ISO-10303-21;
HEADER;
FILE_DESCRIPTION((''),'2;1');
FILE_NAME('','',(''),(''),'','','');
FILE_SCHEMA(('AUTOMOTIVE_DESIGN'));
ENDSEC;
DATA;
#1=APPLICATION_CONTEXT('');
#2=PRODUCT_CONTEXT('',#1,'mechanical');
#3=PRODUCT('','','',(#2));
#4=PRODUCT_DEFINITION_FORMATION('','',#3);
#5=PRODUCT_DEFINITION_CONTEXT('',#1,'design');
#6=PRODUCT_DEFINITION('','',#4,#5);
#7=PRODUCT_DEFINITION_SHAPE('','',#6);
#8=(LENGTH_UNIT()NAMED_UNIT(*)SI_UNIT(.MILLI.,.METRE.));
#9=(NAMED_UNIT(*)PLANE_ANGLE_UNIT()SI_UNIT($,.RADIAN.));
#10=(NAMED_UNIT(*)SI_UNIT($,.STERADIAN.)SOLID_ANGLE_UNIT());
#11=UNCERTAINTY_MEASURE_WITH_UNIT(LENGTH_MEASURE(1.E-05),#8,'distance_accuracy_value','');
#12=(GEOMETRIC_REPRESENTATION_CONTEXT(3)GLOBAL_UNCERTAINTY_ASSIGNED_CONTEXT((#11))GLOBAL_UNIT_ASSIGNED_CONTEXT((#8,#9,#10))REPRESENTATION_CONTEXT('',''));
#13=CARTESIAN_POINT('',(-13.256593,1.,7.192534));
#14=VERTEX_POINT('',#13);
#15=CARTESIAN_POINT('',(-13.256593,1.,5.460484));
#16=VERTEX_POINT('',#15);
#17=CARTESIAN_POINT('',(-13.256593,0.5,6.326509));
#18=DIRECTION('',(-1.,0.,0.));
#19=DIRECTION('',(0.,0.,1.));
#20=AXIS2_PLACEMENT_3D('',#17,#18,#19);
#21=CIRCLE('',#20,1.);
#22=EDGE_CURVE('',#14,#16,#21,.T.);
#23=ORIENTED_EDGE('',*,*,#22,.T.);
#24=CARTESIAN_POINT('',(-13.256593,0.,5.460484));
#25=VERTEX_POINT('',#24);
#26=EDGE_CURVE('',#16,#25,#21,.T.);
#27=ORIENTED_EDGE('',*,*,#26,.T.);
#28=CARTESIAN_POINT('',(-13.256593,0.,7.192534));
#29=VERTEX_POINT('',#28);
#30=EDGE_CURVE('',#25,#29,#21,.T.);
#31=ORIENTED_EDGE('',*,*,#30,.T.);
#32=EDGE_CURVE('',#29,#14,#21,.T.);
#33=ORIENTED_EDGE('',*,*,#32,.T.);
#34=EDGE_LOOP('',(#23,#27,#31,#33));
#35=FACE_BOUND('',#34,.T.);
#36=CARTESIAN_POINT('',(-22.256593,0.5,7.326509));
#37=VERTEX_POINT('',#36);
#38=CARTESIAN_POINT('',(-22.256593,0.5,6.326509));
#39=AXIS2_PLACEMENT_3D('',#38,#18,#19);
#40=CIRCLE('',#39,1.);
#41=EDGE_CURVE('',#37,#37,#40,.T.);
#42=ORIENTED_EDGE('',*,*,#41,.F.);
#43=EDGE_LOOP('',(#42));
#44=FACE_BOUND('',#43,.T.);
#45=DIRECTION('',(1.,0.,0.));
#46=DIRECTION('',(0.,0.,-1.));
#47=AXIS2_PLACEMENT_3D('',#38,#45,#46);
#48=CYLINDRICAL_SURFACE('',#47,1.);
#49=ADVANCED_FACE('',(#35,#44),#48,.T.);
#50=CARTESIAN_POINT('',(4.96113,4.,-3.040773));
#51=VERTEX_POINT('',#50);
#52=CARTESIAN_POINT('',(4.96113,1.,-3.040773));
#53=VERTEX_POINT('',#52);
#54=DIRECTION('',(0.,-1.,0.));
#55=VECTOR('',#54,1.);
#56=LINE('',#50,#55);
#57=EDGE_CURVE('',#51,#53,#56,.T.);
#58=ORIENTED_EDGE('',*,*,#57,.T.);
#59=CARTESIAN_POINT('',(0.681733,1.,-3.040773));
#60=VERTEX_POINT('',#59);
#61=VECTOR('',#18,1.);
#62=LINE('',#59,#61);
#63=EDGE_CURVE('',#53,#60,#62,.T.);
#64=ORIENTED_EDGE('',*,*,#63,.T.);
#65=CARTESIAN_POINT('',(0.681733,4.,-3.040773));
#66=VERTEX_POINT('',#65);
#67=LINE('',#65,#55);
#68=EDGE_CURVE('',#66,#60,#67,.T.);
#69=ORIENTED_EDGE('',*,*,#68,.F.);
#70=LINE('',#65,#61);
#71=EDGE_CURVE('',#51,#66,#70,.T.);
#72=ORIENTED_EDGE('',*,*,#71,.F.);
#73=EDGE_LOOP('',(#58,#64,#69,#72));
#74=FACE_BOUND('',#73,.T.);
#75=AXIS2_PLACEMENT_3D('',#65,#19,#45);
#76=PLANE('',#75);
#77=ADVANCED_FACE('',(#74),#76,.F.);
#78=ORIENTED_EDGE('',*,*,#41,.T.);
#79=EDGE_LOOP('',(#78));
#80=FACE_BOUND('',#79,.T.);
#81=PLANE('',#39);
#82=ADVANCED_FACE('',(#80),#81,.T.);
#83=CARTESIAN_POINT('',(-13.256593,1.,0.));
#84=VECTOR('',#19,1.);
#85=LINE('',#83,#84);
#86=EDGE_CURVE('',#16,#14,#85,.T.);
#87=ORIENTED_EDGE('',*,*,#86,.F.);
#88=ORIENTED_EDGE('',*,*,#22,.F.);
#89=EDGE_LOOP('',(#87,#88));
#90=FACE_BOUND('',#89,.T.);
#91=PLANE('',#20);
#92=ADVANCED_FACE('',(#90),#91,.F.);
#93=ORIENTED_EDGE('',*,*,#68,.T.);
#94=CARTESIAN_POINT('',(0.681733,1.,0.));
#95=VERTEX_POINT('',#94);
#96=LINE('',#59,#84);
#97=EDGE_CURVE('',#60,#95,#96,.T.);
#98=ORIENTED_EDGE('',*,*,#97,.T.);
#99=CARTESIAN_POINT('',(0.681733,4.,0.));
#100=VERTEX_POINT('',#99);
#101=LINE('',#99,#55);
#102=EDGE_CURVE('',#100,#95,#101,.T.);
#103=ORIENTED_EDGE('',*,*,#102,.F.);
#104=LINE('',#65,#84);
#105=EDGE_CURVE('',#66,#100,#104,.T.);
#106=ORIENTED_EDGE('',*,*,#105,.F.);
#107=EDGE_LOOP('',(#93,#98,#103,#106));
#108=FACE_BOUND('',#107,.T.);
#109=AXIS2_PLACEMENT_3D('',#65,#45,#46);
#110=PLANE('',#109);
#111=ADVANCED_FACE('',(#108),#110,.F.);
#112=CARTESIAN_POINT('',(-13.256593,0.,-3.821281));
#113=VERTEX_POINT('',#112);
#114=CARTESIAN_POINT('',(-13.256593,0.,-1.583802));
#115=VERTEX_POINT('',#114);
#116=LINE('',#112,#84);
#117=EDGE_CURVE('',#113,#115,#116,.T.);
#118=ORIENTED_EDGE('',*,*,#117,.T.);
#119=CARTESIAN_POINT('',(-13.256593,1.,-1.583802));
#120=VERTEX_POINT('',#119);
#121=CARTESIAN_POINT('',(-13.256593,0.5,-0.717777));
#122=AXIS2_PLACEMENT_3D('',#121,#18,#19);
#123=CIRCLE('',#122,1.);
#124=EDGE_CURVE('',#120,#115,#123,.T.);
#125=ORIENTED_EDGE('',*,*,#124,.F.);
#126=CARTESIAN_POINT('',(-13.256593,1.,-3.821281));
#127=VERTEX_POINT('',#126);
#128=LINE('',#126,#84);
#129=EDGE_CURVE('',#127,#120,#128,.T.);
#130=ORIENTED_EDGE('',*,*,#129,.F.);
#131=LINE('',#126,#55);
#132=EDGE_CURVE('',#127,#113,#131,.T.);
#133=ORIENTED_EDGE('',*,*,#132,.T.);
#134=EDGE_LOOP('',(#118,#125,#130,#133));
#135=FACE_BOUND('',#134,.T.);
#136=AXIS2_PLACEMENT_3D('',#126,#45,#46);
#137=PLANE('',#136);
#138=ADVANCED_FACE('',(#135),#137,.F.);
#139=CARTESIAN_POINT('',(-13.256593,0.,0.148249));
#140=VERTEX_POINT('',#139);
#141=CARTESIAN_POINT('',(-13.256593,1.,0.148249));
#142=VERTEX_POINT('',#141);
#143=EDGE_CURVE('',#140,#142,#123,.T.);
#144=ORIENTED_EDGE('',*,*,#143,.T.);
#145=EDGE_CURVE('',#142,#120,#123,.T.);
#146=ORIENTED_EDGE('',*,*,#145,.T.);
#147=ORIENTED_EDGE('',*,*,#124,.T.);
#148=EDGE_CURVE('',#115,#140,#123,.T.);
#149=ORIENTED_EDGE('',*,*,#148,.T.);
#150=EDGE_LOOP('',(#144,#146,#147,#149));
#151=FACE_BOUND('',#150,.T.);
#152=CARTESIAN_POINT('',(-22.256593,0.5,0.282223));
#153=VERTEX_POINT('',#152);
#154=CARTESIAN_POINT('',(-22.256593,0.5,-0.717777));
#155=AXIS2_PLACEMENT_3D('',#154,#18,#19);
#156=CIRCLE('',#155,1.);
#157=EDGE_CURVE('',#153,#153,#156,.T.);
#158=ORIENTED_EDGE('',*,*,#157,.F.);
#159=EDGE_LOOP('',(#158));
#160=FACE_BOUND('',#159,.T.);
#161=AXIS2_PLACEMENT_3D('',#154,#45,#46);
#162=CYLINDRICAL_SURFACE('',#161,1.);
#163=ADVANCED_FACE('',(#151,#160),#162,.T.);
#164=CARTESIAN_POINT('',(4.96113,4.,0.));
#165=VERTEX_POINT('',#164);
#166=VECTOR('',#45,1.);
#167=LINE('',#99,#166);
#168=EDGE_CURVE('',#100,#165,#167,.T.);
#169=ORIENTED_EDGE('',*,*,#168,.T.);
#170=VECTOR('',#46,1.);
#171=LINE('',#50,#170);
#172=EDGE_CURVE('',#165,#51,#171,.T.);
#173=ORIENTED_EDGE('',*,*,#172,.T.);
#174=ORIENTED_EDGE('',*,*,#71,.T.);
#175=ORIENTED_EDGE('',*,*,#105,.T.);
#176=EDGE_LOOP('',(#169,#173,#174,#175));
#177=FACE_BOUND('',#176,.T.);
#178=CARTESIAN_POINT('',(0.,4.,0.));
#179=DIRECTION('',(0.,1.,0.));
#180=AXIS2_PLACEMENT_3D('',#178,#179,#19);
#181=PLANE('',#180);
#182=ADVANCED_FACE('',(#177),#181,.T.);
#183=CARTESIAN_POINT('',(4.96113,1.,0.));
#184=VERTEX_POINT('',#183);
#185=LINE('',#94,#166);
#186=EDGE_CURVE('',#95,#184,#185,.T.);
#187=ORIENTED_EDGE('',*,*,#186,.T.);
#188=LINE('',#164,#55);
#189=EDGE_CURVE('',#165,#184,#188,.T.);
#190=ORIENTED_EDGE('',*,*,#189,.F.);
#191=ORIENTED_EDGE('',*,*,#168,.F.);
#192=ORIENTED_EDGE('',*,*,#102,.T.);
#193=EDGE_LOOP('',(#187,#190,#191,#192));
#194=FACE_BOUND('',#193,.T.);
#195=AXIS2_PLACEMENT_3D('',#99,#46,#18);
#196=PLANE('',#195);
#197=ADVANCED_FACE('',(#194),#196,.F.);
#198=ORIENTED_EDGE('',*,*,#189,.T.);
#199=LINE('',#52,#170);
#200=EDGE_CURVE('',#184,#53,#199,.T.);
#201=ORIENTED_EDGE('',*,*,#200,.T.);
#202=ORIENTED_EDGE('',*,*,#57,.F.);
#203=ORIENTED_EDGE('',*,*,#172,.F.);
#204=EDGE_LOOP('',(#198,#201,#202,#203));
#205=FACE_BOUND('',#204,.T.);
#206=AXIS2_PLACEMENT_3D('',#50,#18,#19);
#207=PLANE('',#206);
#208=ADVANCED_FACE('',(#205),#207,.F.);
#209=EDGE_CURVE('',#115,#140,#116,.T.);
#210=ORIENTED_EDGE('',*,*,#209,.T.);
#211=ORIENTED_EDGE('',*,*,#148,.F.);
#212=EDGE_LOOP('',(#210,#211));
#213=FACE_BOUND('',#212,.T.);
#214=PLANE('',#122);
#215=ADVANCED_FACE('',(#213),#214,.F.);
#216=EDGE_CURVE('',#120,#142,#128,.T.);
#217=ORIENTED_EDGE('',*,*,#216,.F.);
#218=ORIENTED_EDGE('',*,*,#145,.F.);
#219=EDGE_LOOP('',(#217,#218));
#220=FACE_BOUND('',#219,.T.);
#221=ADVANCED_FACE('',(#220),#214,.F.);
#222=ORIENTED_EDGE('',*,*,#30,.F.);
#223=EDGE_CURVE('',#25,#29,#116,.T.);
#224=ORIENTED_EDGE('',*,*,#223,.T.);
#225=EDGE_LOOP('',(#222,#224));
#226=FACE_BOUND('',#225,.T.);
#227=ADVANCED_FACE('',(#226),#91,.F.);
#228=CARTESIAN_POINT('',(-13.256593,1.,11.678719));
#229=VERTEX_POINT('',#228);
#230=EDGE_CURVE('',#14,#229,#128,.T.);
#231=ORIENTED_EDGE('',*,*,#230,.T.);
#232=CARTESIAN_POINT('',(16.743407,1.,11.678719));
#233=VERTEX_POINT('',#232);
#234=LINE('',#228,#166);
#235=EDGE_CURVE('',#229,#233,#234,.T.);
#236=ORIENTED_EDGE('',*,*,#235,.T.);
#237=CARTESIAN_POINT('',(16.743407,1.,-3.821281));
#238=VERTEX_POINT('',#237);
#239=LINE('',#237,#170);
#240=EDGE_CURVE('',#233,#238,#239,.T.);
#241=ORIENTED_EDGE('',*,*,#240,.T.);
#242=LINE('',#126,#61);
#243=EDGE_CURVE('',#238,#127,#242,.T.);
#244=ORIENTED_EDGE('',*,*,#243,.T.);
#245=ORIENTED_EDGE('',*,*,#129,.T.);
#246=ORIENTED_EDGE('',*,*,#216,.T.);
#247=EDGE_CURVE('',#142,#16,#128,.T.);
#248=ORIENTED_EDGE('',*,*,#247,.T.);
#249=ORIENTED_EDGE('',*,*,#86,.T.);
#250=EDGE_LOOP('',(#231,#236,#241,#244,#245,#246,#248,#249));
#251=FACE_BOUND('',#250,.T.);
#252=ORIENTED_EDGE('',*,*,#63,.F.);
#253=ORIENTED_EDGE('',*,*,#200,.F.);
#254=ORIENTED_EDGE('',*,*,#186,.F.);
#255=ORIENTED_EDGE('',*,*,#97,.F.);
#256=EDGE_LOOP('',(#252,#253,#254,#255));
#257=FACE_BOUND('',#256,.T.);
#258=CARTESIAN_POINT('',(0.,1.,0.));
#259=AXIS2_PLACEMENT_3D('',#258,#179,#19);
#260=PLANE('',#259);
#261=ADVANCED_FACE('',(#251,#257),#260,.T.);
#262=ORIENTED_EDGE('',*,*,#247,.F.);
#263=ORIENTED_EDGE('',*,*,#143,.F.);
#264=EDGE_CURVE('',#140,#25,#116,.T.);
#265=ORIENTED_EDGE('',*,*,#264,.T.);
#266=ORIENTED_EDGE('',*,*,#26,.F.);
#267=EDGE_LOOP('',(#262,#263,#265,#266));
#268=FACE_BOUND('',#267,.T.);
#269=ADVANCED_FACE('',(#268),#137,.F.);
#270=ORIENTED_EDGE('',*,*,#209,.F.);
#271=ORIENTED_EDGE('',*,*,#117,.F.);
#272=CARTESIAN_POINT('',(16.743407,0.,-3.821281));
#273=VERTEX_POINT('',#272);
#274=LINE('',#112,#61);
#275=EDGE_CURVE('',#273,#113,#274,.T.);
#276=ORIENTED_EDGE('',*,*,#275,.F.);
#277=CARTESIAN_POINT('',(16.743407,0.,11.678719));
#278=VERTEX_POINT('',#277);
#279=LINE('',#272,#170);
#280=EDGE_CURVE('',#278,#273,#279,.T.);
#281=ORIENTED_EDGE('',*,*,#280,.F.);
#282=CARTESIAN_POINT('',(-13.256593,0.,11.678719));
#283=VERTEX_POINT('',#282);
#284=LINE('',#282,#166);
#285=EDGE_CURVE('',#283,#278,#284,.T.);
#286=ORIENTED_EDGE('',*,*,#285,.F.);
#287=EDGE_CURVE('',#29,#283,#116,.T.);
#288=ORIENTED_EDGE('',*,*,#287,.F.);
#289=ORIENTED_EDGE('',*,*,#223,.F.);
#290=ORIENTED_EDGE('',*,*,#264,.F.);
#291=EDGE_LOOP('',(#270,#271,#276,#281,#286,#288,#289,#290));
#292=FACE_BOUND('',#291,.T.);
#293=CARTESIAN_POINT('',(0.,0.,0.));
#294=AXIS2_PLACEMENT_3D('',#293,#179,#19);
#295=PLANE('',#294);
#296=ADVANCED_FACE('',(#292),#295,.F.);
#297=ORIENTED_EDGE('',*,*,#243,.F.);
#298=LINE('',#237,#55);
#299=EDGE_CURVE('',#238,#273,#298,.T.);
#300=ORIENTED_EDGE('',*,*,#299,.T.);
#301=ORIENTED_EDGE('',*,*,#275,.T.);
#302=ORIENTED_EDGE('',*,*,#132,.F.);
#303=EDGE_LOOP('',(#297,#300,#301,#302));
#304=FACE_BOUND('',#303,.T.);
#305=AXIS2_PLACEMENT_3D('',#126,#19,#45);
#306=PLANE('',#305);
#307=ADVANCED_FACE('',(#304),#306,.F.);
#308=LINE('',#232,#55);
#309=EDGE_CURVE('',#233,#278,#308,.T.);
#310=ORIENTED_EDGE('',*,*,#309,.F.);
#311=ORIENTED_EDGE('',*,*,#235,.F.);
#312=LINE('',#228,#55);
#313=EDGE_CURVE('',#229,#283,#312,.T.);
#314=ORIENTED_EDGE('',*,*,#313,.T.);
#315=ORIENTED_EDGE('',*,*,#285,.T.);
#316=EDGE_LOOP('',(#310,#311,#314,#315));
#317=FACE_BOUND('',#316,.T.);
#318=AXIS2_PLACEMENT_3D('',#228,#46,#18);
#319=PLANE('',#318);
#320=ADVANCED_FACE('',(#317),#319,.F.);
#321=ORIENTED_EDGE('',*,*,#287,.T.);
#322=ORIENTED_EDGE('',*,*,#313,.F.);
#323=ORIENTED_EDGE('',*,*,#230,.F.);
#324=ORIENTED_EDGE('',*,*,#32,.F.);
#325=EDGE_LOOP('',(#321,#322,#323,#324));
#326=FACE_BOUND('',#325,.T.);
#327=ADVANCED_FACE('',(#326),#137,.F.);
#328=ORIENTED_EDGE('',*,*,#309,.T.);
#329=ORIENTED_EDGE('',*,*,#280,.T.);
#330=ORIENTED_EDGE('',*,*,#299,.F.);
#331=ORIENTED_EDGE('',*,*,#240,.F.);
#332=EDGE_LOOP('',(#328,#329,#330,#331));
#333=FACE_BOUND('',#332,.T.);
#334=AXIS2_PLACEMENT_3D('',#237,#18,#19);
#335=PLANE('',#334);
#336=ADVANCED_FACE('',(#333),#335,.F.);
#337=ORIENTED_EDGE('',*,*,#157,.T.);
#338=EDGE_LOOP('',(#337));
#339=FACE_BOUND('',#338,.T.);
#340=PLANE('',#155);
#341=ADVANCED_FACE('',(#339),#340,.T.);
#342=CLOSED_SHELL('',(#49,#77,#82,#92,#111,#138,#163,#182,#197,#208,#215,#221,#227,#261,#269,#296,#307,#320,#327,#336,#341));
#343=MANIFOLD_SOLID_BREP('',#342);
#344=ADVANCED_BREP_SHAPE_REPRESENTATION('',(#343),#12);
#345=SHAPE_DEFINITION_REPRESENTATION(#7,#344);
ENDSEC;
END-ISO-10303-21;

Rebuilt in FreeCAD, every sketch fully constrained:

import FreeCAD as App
import Part
import Sketcher

V = App.Vector


def add_polygon(sketch, points):
    """Adds a closed chain of lines whose ends are joined by coincident constraints."""
    first, n = sketch.GeometryCount, len(points)
    for a, b in zip(points, points[1:] + points[:1]):
        sketch.addGeometry(Part.LineSegment(App.Vector(*a, 0), App.Vector(*b, 0)), False)
    for i in range(n):
        sketch.addConstraint(Sketcher.Constraint("Coincident", first + i, 2, first + (i + 1) % n, 1))

doc = App.newDocument("Part")
body = doc.addObject("PartDesign::Body", "Body")

# Sketch on XZ plane
sketch1 = doc.addObject("Sketcher::SketchObject", "Sketch")
body.addObject(sketch1)
sketch1.AttachmentSupport = (doc.XZ_Plane, [""])
sketch1.MapMode = "FlatFace"
add_polygon(sketch1, [(-13.256593, -3.821281), (-13.256593, 11.678719), (16.743407, 11.678719), (16.743407, -3.821281)])  # lines 0-3
sketch1.addConstraint([
    Sketcher.Constraint("Vertical", 0),
    Sketcher.Constraint("Horizontal", 1),
    Sketcher.Constraint("Vertical", 2),
    Sketcher.Constraint("Horizontal", 3),
    Sketcher.Constraint("DistanceX", 1, 1, 1, 2, 30.0),
    Sketcher.Constraint("DistanceY", 0, 1, 0, 2, 15.5),
    Sketcher.Constraint("DistanceY", -1, 1, 0, 2, 11.678719),
    Sketcher.Constraint("DistanceX", 0, 2, -1, 1, 13.256593),
])
pad1 = doc.addObject("PartDesign::Pad", "Pad")
body.addObject(pad1)
pad1.Profile = sketch1
pad1.Length = 1
pad1.Reversed = True

# Sketch on YZ plane
sketch2 = doc.addObject("Sketcher::SketchObject", "Sketch001")
body.addObject(sketch2)
sketch2.AttachmentSupport = (doc.YZ_Plane, [""])
sketch2.MapMode = "FlatFace"
sketch2.AttachmentOffset = App.Placement(V(0, 0, -13.256593), App.Rotation())
sketch2.addGeometry([
    Part.Circle(V(0.5, -0.717777, 0), V(0, 0, 1), 1),
    Part.Circle(V(0.5, 6.326509, 0), V(0, 0, 1), 1),
], False)
sketch2.addConstraint([
    Sketcher.Constraint("Equal", 0, 1),
    Sketcher.Constraint("Vertical", 0, 3, 1, 3),
    Sketcher.Constraint("Diameter", 0, 2.0),
    Sketcher.Constraint("DistanceX", -1, 1, 0, 3, 0.5),
    Sketcher.Constraint("DistanceY", -1, 1, 1, 3, 6.326509),
    Sketcher.Constraint("DistanceY", 0, 3, -1, 1, 0.717777),
])
pad2 = doc.addObject("PartDesign::Pad", "Pad001")
body.addObject(pad2)
pad2.Profile = sketch2
pad2.Length = 9
pad2.Reversed = True

# Sketch on XZ plane
sketch3 = doc.addObject("Sketcher::SketchObject", "Sketch002")
body.addObject(sketch3)
sketch3.AttachmentSupport = (doc.XZ_Plane, [""])
sketch3.MapMode = "FlatFace"
sketch3.AttachmentOffset = App.Placement(V(0, 0, -1), App.Rotation())
add_polygon(sketch3, [(0.681733, -3.040773), (0.681733, 0), (4.96113, 0), (4.96113, -3.040773)])  # lines 0-3
sketch3.addConstraint([
    Sketcher.Constraint("Vertical", 0),
    Sketcher.Constraint("Horizontal", 1),
    Sketcher.Constraint("Vertical", 2),
    Sketcher.Constraint("Horizontal", 3),
    Sketcher.Constraint("PointOnObject", 0, 2, -1),
    Sketcher.Constraint("DistanceX", 1, 1, 1, 2, 4.279397),
    Sketcher.Constraint("DistanceY", 0, 1, 0, 2, 3.040773),
    Sketcher.Constraint("DistanceX", -1, 1, 1, 2, 4.96113),
])
pad3 = doc.addObject("PartDesign::Pad", "Pad002")
body.addObject(pad3)
pad3.Profile = sketch3
pad3.Length = 3
pad3.Reversed = True

doc.recompute()
